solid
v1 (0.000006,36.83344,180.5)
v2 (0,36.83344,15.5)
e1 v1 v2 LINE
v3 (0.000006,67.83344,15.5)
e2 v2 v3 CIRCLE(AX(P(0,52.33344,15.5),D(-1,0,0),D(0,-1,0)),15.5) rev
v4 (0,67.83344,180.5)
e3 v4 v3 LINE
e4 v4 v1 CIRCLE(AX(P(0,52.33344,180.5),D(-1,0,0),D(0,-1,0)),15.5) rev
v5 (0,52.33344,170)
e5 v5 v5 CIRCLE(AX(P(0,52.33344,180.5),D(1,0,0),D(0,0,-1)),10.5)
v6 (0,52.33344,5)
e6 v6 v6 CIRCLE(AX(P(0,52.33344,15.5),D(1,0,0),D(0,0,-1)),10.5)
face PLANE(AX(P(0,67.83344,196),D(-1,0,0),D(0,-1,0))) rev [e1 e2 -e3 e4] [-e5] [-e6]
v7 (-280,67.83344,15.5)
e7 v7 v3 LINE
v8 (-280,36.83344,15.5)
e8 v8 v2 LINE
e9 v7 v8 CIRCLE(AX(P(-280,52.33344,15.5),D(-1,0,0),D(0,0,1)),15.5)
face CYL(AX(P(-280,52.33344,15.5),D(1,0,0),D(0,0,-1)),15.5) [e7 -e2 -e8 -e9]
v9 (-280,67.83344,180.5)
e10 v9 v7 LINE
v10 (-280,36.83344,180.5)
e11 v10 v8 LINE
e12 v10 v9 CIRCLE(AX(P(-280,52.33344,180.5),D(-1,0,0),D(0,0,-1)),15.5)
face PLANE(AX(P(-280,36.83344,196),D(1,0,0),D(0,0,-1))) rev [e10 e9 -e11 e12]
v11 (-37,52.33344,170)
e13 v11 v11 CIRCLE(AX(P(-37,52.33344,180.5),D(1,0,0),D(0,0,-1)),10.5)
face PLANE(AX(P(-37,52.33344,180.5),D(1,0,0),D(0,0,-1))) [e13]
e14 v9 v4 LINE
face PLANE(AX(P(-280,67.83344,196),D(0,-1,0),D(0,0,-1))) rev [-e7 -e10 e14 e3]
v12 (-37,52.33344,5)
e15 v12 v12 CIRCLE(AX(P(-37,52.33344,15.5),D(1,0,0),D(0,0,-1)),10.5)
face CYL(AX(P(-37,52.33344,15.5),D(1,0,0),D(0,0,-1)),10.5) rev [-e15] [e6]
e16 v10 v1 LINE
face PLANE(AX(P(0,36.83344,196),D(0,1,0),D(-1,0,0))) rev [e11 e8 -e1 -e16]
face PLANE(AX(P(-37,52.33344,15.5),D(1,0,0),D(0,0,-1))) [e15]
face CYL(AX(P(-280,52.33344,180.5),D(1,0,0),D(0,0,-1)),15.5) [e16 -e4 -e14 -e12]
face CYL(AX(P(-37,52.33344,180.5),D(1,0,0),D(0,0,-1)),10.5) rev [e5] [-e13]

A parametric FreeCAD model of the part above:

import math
import FreeCAD as App
import Part
import Sketcher

V = App.Vector

doc = App.newDocument("Part")
body = doc.addObject("PartDesign::Body", "Body")

# Sketch on XY plane
sketch1 = body.newObject("Sketcher::SketchObject", "Sketch")
sketch1.AttachmentSupport = (doc.getObject("XY_Plane"), [""])
sketch1.MapMode = "FlatFace"
sketch1.addGeometry([
    Part.LineSegment(V(-280, 67.83344, 0), V(-280, 36.83344, 0)),
    Part.LineSegment(V(-280, 36.83344, 0), V(0, 36.83344, 0)),
    Part.LineSegment(V(0, 36.83344, 0), V(0, 67.83344, 0)),
    Part.LineSegment(V(0, 67.83344, 0), V(-280, 67.83344, 0)),
], False)
sketch1.addConstraint([
    Sketcher.Constraint("Coincident", 0, 2, 1, 1),
    Sketcher.Constraint("Coincident", 1, 2, 2, 1),
    Sketcher.Constraint("Coincident", 2, 2, 3, 1),
    Sketcher.Constraint("Coincident", 3, 2, 0, 1),
    Sketcher.Constraint("Vertical", 0),
    Sketcher.Constraint("Horizontal", 1),
    Sketcher.Constraint("Vertical", 2),
    Sketcher.Constraint("Horizontal", 3),
    Sketcher.Constraint("PointOnObject", 1, 2, -2),
    Sketcher.Constraint("DistanceX", 1, 1, 1, 2, 280.0),
    Sketcher.Constraint("DistanceY", 0, 2, 0, 1, 31.0),
    Sketcher.Constraint("DistanceY", -1, 1, 0, 2, 36.83344),
])
pad1 = body.newObject("PartDesign::Pad", "Pad")
pad1.Profile = sketch1
pad1.Length = 196

# Sketch on YZ plane
sketch2 = body.newObject("Sketcher::SketchObject", "Sketch001")
sketch2.AttachmentSupport = (doc.getObject("YZ_Plane"), [""])
sketch2.MapMode = "FlatFace"
sketch2.addGeometry([
    Part.LineSegment(V(67.83344, 180.5, 0), V(68.83344, 180.5, 0)),  # 0
    Part.LineSegment(V(68.83344, 180.5, 0), V(68.83344, 197, 0)),  # 1
    Part.LineSegment(V(68.83344, 197, 0), V(35.83344, 197, 0)),  # 2
    Part.LineSegment(V(35.83344, 197, 0), V(35.83344, 180.5, 0)),  # 3
    Part.LineSegment(V(35.83344, 180.5, 0), V(36.83344, 180.5, 0)),  # 4
    Part.ArcOfCircle(Part.Circle(V(52.33344, 180.5, 0), V(0, 0, 1), 15.5), math.radians(0), math.radians(180)),  # 5
    Part.LineSegment(V(68.83344, 15.5, 0), V(67.83344, 15.5, 0)),  # 6
    Part.ArcOfCircle(Part.Circle(V(52.33344, 15.5, 0), V(0, 0, 1), 15.5), math.radians(180), math.radians(360)),  # 7
    Part.LineSegment(V(36.83344, 15.5, 0), V(35.83344, 15.5, 0)),  # 8
    Part.LineSegment(V(35.83344, 15.5, 0), V(35.83344, -1, 0)),  # 9
    Part.LineSegment(V(35.83344, -1, 0), V(68.83344, -1, 0)),  # 10
    Part.LineSegment(V(68.83344, -1, 0), V(68.83344, 15.5, 0)),  # 11
], False)
sketch2.addConstraint([
    Sketcher.Constraint("Coincident", 0, 2, 1, 1),
    Sketcher.Constraint("Coincident", 1, 2, 2, 1),
    Sketcher.Constraint("Coincident", 2, 2, 3, 1),
    Sketcher.Constraint("Coincident", 3, 2, 4, 1),
    Sketcher.Constraint("Coincident", 4, 2, 5, 2),
    Sketcher.Constraint("Coincident", 5, 1, 0, 1),
    Sketcher.Constraint("Coincident", 6, 2, 7, 2),
    Sketcher.Constraint("Coincident", 7, 1, 8, 1),
    Sketcher.Constraint("Coincident", 8, 2, 9, 1),
    Sketcher.Constraint("Coincident", 9, 2, 10, 1),
    Sketcher.Constraint("Coincident", 10, 2, 11, 1),
    Sketcher.Constraint("Coincident", 11, 2, 6, 1),
    Sketcher.Constraint("Horizontal", 0),
    Sketcher.Constraint("Vertical", 1),
    Sketcher.Constraint("Horizontal", 2),
    Sketcher.Constraint("Vertical", 3),
    Sketcher.Constraint("Horizontal", 4),
    Sketcher.Constraint("Horizontal", 6),
    Sketcher.Constraint("Horizontal", 8),
    Sketcher.Constraint("Vertical", 9),
    Sketcher.Constraint("Horizontal", 10),
    Sketcher.Constraint("Vertical", 11),
    Sketcher.Constraint("Equal", 5, 7),
    Sketcher.Constraint("Horizontal", 5, 3, 0, 2),
    Sketcher.Constraint("Horizontal", 0, 2, 3, 2),
    Sketcher.Constraint("Horizontal", 7, 3, 6, 2),
    Sketcher.Constraint("Horizontal", 6, 2, 7, 1),
    Sketcher.Constraint("Vertical", 5, 3, 7, 3),
    Sketcher.Constraint("Vertical", 3, 2, 8, 2),
    Sketcher.Constraint("Vertical", 1, 2, 10, 2),
    Sketcher.Constraint("Equal", 0, 4),
    Sketcher.Constraint("Equal", 3, 9),
    Sketcher.Constraint("Radius", 5, 15.5),
    Sketcher.Constraint("DistanceX", 0, 1, 0, 2, 1.0),
    Sketcher.Constraint("DistanceY", 1, 1, 1, 2, 16.5),
    Sketcher.Constraint("DistanceY", -1, 1, 1, 2, 197.0),
    Sketcher.Constraint("DistanceY", 9, 2, -1, 1, 1.0),
    Sketcher.Constraint("DistanceX", -1, 1, 5, 3, 52.33344),
])
pocket1 = body.newObject("PartDesign::Pocket", "Pocket")
pocket1.Profile = sketch2
pocket1.Type = "ThroughAll"
pocket1.Midplane = True

# Sketch on YZ plane
sketch3 = body.newObject("Sketcher::SketchObject", "Sketch002")
sketch3.AttachmentSupport = (doc.getObject("YZ_Plane"), [""])
sketch3.MapMode = "FlatFace"
sketch3.addGeometry([
    Part.Circle(V(52.33344, 180.5, 0), V(0, 0, 1), 10.5),
    Part.Circle(V(52.33344, 15.5, 0), V(0, 0, 1), 10.5),
], False)
sketch3.addConstraint([
    Sketcher.Constraint("Equal", 0, 1),
    Sketcher.Constraint("Vertical", 0, 3, 1, 3),
    Sketcher.Constraint("Diameter", 0, 21.0),
    Sketcher.Constraint("DistanceY", 1, 3, 0, 3, 165.0),
    Sketcher.Constraint("DistanceY", -1, 1, 0, 3, 180.5),
    Sketcher.Constraint("DistanceX", -1, 1, 0, 3, 52.33344),
])
pocket2 = body.newObject("PartDesign::Pocket", "Pocket001")
pocket2.Profile = sketch3
pocket2.Length = 37

doc.recompute()
